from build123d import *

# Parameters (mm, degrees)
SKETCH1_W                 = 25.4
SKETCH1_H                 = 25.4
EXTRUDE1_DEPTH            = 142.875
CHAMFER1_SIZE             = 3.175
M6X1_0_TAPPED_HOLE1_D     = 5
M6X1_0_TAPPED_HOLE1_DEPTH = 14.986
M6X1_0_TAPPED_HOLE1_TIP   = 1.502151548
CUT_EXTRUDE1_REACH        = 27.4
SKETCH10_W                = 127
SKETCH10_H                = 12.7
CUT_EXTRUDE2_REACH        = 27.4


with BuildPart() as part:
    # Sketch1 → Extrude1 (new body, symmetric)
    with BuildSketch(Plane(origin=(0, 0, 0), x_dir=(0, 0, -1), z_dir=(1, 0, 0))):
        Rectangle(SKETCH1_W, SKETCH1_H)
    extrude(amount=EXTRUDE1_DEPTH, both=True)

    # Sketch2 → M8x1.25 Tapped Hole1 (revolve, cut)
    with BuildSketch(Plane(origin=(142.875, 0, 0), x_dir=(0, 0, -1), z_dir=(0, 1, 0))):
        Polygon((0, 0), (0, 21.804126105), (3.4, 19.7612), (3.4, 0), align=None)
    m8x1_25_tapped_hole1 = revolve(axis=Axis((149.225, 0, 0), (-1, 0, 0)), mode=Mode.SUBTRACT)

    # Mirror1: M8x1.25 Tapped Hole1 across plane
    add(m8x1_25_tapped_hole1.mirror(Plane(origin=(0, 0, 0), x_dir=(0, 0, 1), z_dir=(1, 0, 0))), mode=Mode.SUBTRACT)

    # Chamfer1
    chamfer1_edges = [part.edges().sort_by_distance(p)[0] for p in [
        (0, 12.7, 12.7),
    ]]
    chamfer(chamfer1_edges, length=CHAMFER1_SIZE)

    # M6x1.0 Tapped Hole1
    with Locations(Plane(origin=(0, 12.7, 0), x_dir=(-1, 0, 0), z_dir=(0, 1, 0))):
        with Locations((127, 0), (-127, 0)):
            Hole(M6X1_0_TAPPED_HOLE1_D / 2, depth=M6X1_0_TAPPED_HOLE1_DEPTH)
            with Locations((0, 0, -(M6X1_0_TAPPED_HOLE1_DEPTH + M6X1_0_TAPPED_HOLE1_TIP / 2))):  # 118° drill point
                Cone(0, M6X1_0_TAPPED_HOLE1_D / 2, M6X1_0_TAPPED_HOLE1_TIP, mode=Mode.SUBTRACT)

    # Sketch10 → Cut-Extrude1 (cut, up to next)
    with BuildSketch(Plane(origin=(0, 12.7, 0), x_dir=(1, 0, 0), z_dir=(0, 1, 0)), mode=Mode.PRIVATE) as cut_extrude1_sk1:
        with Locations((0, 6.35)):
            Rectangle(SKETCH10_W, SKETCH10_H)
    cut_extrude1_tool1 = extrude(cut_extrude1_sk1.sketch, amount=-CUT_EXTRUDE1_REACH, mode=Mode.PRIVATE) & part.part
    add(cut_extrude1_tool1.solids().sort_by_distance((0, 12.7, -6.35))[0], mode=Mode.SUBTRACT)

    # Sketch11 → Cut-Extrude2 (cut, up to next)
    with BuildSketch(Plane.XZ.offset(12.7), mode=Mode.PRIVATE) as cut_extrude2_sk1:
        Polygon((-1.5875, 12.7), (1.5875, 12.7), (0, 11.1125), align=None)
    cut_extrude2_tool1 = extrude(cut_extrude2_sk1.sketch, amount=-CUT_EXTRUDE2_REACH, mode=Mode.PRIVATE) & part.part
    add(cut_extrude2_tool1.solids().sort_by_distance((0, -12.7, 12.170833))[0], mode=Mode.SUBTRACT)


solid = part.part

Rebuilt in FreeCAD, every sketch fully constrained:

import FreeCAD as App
import Part
import Sketcher
Q = App.Units.Quantity


def edges_at(feature, points):
    """Names of the edges that pass closest to the given points."""
    edges = feature.Shape.Edges
    near = lambda p: min(range(len(edges)), key=lambda i: edges[i].distToShape(Part.Vertex(*p))[0])
    return sorted({f"Edge{near(p) + 1}" for p in points})


def add_polygon(sketch, points):
    """Adds a closed chain of lines whose ends are joined by coincident constraints."""
    first, n = sketch.GeometryCount, len(points)
    for a, b in zip(points, points[1:] + points[:1]):
        sketch.addGeometry(Part.LineSegment(App.Vector(*a, 0), App.Vector(*b, 0)), False)
    for i in range(n):
        sketch.addConstraint(Sketcher.Constraint("Coincident", first + i, 2, first + (i + 1) % n, 1))

doc = App.newDocument("Part")
body = doc.addObject("PartDesign::Body", "Body")

# Sketch on YZ plane
sketch1 = body.newObject("Sketcher::SketchObject", "Sketch")
sketch1.AttachmentSupport = (doc.getObject("YZ_Plane"), [""])
sketch1.MapMode = "FlatFace"
add_polygon(sketch1, [(13, 13), (-13, 13), (-13, -13), (13, -13)])  # lines 0-3
sketch1.addConstraint([
    Sketcher.Constraint("Horizontal", 0),
    Sketcher.Constraint("Vertical", 1),
    Sketcher.Constraint("Horizontal", 2),
    Sketcher.Constraint("Vertical", 3),
    Sketcher.Constraint("Symmetric", 0, 2, 2, 2, -1, 1),
    Sketcher.Constraint("Equal", 2, 1),
    Sketcher.Constraint("DistanceX", 0, 2, 0, 1, Q("1 in")),
])
pad1 = body.newObject("PartDesign::Pad", "Pad")
pad1.Profile = sketch1
pad1.Length = Q("11.25 in")
pad1.Midplane = True

# Sketch on XZ plane
sketch2 = body.newObject("Sketcher::SketchObject", "Sketch001")
sketch2.AttachmentSupport = (doc.getObject("XZ_Plane"), [""])
sketch2.MapMode = "FlatFace"
add_polygon(sketch2, [(121.1, 0), (142.9, 0), (142.9, -3.4), (123.1, -3.4)])  # lines 0-3
sketch2.addConstraint([
    Sketcher.Constraint("Horizontal", 0),
    Sketcher.Constraint("Vertical", 1),
    Sketcher.Constraint("Horizontal", 2),
    Sketcher.Constraint("PointOnObject", 0, 2, -1),
    Sketcher.Constraint("Angle", 3, Q("121 deg")),
    Sketcher.Constraint("DistanceX", 2, 2, 2, 1, Q("0.778 in")),
    Sketcher.Constraint("DistanceX", -1, 1, 0, 2, Q("5.625 in")),
    Sketcher.Constraint("DistanceY", 1, 2, 1, 1, 3.4),
])
groove = body.newObject("PartDesign::Groove", "Groove")
groove.Profile = sketch2
groove.ReferenceAxis = (sketch2, ["H_Axis"])
groove.Angle = 360
doc.recompute()

mirrored = body.newObject("PartDesign::Mirrored", "Mirrored")
mirrored.Originals = [groove]
mirrored.MirrorPlane = (doc.getObject("YZ_Plane"), [""])
body.Tip = mirrored
doc.recompute()

chamfer = body.newObject("PartDesign::Chamfer", "Chamfer")
chamfer.Base = (mirrored, edges_at(mirrored, [(0, 12.7, 12.7)]))
chamfer.Size = Q("0.125 in")

# Sketch on XZ plane
sketch3 = body.newObject("Sketcher::SketchObject", "Sketch002")
sketch3.AttachmentSupport = (doc.getObject("XZ_Plane"), [""])
sketch3.MapMode = "FlatFace"
sketch3.AttachmentOffset = App.Placement(App.Vector(0, 0, -0.5 * 25.4), App.Rotation())
sketch3.addGeometry([
    Part.Circle(App.Vector(-127, 0, 0), App.Vector(0, 0, 1), 2.5),
    Part.Circle(App.Vector(127, 0, 0), App.Vector(0, 0, 1), 2.5),
], False)
sketch3.addConstraint([
    Sketcher.Constraint("Equal", 0, 1),
    Sketcher.Constraint("Symmetric", 0, 3, 1, 3, -1, 1),
    Sketcher.Constraint("PointOnObject", 0, 3, -1),
    Sketcher.Constraint("DistanceX", 0, 3, -1, 1, Q("5 in")),
    Sketcher.Constraint("Diameter", 0, 5.0),
])
doc.recompute()
hole = body.newObject("PartDesign::Hole", "Hole")
hole.Profile = sketch3
hole.ThreadType = "None"
hole.Diameter = 5
hole.DepthType = "Dimension"
hole.Depth = Q("0.59 in")
hole.DrillPoint = "Angled"
hole.DrillPointAngle = 118
hole.Reversed = True

# Sketch on XZ plane
sketch4 = body.newObject("Sketcher::SketchObject", "Sketch003")
sketch4.AttachmentSupport = (doc.getObject("XZ_Plane"), [""])
sketch4.MapMode = "FlatFace"
sketch4.AttachmentOffset = App.Placement(App.Vector(0, 0, -0.5 * 25.4), App.Rotation())
add_polygon(sketch4, [(-64, -13), (-64, 0), (64, 0), (64, -13)])  # lines 0-3
sketch4.addConstraint([
    Sketcher.Constraint("Vertical", 0),
    Sketcher.Constraint("Horizontal", 1),
    Sketcher.Constraint("Vertical", 2),
    Sketcher.Constraint("Horizontal", 3),
    Sketcher.Constraint("Symmetric", 0, 2, 1, 2, -1, 1),
    Sketcher.Constraint("DistanceX", 1, 1, 1, 2, Q("5 in")),
    Sketcher.Constraint("DistanceY", 0, 1, 0, 2, Q("0.5 in")),
])
pocket1 = body.newObject("PartDesign::Pocket", "Pocket")
pocket1.Profile = sketch4
pocket1.Type = "UpToFirst"
pocket1.Reversed = True

# Sketch on XZ plane
sketch5 = body.newObject("Sketcher::SketchObject", "Sketch004")
sketch5.AttachmentSupport = (doc.getObject("XZ_Plane"), [""])
sketch5.MapMode = "FlatFace"
sketch5.AttachmentOffset = App.Placement(App.Vector(0, 0, 0.5 * 25.4), App.Rotation())
add_polygon(sketch5, [(1.6, 12.7), (-1.6, 12.7), (0, 11.1)])  # lines 0-2
sketch5.addConstraint([
    Sketcher.Constraint("Horizontal", 0),
    Sketcher.Constraint("PointOnObject", 1, 2, -2),
    Sketcher.Constraint("Perpendicular", 1, 2),
    Sketcher.Constraint("Equal", 1, 2),
    Sketcher.Constraint("DistanceY", -1, 1, 0, 2, Q("0.5 in")),
    Sketcher.Constraint("DistanceX", 0, 2, 0, 1, Q("0.125 in")),
])
pocket2 = body.newObject("PartDesign::Pocket", "Pocket001")
pocket2.Profile = sketch5
pocket2.Type = "UpToFirst"

doc.recompute()
